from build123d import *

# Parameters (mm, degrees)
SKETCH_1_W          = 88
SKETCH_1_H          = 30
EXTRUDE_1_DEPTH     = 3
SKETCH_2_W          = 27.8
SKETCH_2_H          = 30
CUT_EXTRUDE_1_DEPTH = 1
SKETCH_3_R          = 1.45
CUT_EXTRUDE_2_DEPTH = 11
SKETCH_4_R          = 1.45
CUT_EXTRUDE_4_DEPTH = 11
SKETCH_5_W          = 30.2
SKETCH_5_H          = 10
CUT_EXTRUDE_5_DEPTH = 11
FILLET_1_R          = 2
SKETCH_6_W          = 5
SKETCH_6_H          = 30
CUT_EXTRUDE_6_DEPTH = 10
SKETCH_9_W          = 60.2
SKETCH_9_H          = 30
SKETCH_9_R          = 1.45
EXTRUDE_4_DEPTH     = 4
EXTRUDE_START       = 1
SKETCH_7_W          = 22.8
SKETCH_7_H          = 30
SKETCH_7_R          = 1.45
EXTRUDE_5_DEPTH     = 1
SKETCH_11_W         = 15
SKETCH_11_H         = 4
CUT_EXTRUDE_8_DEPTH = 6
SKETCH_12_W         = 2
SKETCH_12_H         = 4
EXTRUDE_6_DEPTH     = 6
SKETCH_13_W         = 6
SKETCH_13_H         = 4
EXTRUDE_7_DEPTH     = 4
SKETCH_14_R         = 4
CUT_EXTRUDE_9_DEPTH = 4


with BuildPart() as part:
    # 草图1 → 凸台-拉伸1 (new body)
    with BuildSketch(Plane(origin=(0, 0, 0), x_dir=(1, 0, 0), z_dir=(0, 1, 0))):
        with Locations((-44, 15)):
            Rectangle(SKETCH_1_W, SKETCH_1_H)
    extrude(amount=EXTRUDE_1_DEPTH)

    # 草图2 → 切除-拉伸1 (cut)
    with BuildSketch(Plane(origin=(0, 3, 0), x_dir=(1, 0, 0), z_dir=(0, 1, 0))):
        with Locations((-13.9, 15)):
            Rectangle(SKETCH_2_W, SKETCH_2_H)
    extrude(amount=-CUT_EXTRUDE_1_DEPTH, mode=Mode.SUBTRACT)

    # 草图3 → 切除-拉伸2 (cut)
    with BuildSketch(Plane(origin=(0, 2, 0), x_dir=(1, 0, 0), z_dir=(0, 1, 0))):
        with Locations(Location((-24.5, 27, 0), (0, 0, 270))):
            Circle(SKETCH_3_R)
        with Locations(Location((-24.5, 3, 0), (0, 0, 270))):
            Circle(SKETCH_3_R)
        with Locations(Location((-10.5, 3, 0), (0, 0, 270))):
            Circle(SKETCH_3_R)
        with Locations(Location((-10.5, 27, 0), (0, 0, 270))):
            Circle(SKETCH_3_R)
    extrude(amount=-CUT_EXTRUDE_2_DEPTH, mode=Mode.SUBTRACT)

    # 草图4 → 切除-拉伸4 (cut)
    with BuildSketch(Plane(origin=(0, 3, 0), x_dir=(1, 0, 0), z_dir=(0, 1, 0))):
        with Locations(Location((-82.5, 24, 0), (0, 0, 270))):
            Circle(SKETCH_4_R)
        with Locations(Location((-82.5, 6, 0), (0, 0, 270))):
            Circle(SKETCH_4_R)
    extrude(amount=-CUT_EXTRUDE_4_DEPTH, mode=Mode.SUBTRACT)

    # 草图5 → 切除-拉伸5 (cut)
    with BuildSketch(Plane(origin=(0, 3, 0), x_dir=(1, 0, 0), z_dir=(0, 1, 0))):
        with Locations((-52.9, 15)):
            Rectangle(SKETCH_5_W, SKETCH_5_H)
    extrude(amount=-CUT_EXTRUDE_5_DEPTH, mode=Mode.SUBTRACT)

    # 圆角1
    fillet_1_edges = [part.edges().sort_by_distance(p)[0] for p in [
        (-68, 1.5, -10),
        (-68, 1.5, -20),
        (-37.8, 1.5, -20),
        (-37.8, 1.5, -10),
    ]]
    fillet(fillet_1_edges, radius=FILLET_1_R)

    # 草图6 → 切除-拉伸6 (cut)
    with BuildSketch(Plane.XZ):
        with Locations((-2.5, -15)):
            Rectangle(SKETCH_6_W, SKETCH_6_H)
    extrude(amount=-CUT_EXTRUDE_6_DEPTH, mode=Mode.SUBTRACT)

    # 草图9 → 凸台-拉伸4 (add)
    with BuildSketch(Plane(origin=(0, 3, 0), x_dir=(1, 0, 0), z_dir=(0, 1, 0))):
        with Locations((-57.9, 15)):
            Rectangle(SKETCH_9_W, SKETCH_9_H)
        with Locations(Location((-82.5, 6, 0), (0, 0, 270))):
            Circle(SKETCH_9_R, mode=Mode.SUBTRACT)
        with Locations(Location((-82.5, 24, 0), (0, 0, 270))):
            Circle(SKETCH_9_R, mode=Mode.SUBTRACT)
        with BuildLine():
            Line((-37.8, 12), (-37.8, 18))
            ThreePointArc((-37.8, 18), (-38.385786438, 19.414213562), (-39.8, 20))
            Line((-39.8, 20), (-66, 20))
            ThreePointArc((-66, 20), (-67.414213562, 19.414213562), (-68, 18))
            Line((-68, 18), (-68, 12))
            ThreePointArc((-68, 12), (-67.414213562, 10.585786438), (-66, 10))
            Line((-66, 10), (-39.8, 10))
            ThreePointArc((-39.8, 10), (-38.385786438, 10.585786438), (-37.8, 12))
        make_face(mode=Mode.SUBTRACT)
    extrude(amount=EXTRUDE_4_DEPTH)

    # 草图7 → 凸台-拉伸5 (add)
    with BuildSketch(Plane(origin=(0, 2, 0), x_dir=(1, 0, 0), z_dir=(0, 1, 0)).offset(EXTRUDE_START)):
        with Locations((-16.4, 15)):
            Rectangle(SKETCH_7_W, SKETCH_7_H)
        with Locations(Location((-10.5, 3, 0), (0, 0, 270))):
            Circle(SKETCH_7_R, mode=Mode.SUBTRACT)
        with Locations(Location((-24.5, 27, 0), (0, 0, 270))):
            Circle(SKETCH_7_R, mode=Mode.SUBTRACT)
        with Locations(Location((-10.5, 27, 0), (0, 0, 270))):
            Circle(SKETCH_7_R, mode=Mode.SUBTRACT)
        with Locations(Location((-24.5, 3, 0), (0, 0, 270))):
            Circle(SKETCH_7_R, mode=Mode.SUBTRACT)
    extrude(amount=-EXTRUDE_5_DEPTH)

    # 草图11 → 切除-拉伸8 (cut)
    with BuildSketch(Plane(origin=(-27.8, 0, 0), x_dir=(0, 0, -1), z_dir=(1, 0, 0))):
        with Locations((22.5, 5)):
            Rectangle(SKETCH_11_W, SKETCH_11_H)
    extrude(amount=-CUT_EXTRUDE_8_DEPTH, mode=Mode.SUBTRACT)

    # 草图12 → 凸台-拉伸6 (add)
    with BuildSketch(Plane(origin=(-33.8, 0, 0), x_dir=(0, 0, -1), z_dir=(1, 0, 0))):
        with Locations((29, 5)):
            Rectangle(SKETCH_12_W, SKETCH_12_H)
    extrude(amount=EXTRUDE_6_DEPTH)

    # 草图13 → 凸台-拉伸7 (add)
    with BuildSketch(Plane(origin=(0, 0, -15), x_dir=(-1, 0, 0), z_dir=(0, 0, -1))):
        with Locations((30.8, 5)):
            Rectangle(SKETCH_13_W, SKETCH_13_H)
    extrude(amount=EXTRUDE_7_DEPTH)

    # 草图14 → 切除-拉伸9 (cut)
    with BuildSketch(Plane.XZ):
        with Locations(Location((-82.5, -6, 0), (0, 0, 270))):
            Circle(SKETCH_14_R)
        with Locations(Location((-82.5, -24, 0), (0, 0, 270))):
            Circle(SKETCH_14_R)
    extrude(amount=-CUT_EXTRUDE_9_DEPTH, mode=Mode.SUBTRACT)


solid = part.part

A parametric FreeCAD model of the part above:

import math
import FreeCAD as App
import Part
import Sketcher
from FreeCAD import Vector
Q = App.Units.Quantity


def edges_at(feature, points):
    """Names of the edges that pass closest to the given points."""
    edges = feature.Shape.Edges
    near = lambda p: min(range(len(edges)), key=lambda i: edges[i].distToShape(Part.Vertex(*p))[0])
    return sorted({f"Edge{near(p) + 1}" for p in points})

doc = App.newDocument("Part")
body = doc.addObject("PartDesign::Body", "Body")

# Sketch on XZ plane
sketch1 = body.newObject("Sketcher::SketchObject", "Sketch")
sketch1.AttachmentSupport = (doc.getObject("XZ_Plane"), [""])
sketch1.MapMode = "FlatFace"
sketch1.addGeometry(Part.LineSegment(Vector(-88, -30, 0), Vector(-88, 0, 0)), False)
sketch1.addGeometry(Part.LineSegment(Vector(-88, 0, 0), Vector(0, 0, 0)), False)
sketch1.addGeometry(Part.LineSegment(Vector(0, 0, 0), Vector(0, -30, 0)), False)
sketch1.addGeometry(Part.LineSegment(Vector(0, -30, 0), Vector(-88, -30, 0)), False)
sketch1.addConstraint(Sketcher.Constraint("Coincident", 0, 2, 1, 1))
sketch1.addConstraint(Sketcher.Constraint("Coincident", 1, 2, 2, 1))
sketch1.addConstraint(Sketcher.Constraint("Coincident", 2, 2, 3, 1))
sketch1.addConstraint(Sketcher.Constraint("Coincident", 3, 2, 0, 1))
sketch1.addConstraint(Sketcher.Constraint("Vertical", 0))
sketch1.addConstraint(Sketcher.Constraint("Horizontal", 1))
sketch1.addConstraint(Sketcher.Constraint("Vertical", 2))
sketch1.addConstraint(Sketcher.Constraint("Horizontal", 3))
sketch1.addConstraint(Sketcher.Constraint("Coincident", 1, 2, -1, 1))
sketch1.addConstraint(Sketcher.Constraint("DistanceX", 1, 1, 1, 2, Q("88 mm")))
sketch1.addConstraint(Sketcher.Constraint("DistanceY", 0, 1, 0, 2, Q("30 mm")))
pad1 = body.newObject("PartDesign::Pad", "Pad")
pad1.Profile = sketch1
pad1.Length = 3
pad1.Reversed = True

# Sketch on XZ plane
sketch2 = body.newObject("Sketcher::SketchObject", "Sketch001")
sketch2.AttachmentSupport = (doc.getObject("XZ_Plane"), [""])
sketch2.MapMode = "FlatFace"
sketch2.AttachmentOffset = App.Placement(Vector(0, 0, -3), App.Rotation())
sketch2.addGeometry(Part.LineSegment(Vector(-27.8, -30, 0), Vector(-27.8, 0, 0)), False)
sketch2.addGeometry(Part.LineSegment(Vector(-27.8, 0, 0), Vector(0, 0, 0)), False)
sketch2.addGeometry(Part.LineSegment(Vector(0, 0, 0), Vector(0, -30, 0)), False)
sketch2.addGeometry(Part.LineSegment(Vector(0, -30, 0), Vector(-27.8, -30, 0)), False)
sketch2.addConstraint(Sketcher.Constraint("Coincident", 0, 2, 1, 1))
sketch2.addConstraint(Sketcher.Constraint("Coincident", 1, 2, 2, 1))
sketch2.addConstraint(Sketcher.Constraint("Coincident", 2, 2, 3, 1))
sketch2.addConstraint(Sketcher.Constraint("Coincident", 3, 2, 0, 1))
sketch2.addConstraint(Sketcher.Constraint("Vertical", 0))
sketch2.addConstraint(Sketcher.Constraint("Horizontal", 1))
sketch2.addConstraint(Sketcher.Constraint("Vertical", 2))
sketch2.addConstraint(Sketcher.Constraint("Horizontal", 3))
sketch2.addConstraint(Sketcher.Constraint("Coincident", 1, 2, -1, 1))
sketch2.addConstraint(Sketcher.Constraint("DistanceY", 0, 1, 0, 2, Q("30 mm")))
sketch2.addConstraint(Sketcher.Constraint("DistanceX", 1, 1, 1, 2, Q("27.8 mm")))
pocket1 = body.newObject("PartDesign::Pocket", "Pocket")
pocket1.Profile = sketch2
pocket1.Length = 1
pocket1.Reversed = True

# Sketch on XZ plane
sketch3 = body.newObject("Sketcher::SketchObject", "Sketch002")
sketch3.AttachmentSupport = (doc.getObject("XZ_Plane"), [""])
sketch3.MapMode = "FlatFace"
sketch3.AttachmentOffset = App.Placement(Vector(0, 0, -2), App.Rotation())
sketch3.addGeometry(Part.Circle(Vector(-24.5, -27, 0), Vector(0, 0, 1), 1.45), False)
sketch3.addGeometry(Part.Circle(Vector(-24.5, -3, 0), Vector(0, 0, 1), 1.45), False)
sketch3.addGeometry(Part.Circle(Vector(-10.5, -3, 0), Vector(0, 0, 1), 1.45), False)
sketch3.addGeometry(Part.Circle(Vector(-10.5, -27, 0), Vector(0, 0, 1), 1.45), False)
sketch3.addConstraint(Sketcher.Constraint("Equal", 0, 1))
sketch3.addConstraint(Sketcher.Constraint("Equal", 1, 2))
sketch3.addConstraint(Sketcher.Constraint("Equal", 2, 3))
sketch3.addConstraint(Sketcher.Constraint("Horizontal", 1, 3, 2, 3))
sketch3.addConstraint(Sketcher.Constraint("Horizontal", 0, 3, 3, 3))
sketch3.addConstraint(Sketcher.Constraint("Vertical", 0, 3, 1, 3))
sketch3.addConstraint(Sketcher.Constraint("Vertical", 2, 3, 3, 3))
sketch3.addConstraint(Sketcher.Constraint("Diameter", 0, Q("2.9 mm")))
sketch3.addConstraint(Sketcher.Constraint("DistanceY", 0, 3, -1, 1, Q("27 mm")))
sketch3.addConstraint(Sketcher.Constraint("DistanceY", 1, 3, -1, 1, Q("3 mm")))
sketch3.addConstraint(Sketcher.Constraint("DistanceX", 1, 3, 2, 3, Q("14 mm")))
sketch3.addConstraint(Sketcher.Constraint("DistanceX", 0, 3, -1, 1, Q("24.5 mm")))
pocket2 = body.newObject("PartDesign::Pocket", "Pocket001")
pocket2.Profile = sketch3
pocket2.Length = 11
pocket2.Reversed = True

# Sketch on XZ plane
sketch4 = body.newObject("Sketcher::SketchObject", "Sketch003")
sketch4.AttachmentSupport = (doc.getObject("XZ_Plane"), [""])
sketch4.MapMode = "FlatFace"
sketch4.AttachmentOffset = App.Placement(Vector(0, 0, -3), App.Rotation())
sketch4.addGeometry(Part.Circle(Vector(-82.5, -24, 0), Vector(0, 0, 1), 1.45), False)
sketch4.addGeometry(Part.Circle(Vector(-82.5, -6, 0), Vector(0, 0, 1), 1.45), False)
sketch4.addConstraint(Sketcher.Constraint("Equal", 0, 1))
sketch4.addConstraint(Sketcher.Constraint("Vertical", 0, 3, 1, 3))
sketch4.addConstraint(Sketcher.Constraint("Diameter", 0, Q("2.9 mm")))
sketch4.addConstraint(Sketcher.Constraint("DistanceY", 0, 3, -1, 1, Q("24 mm")))
sketch4.addConstraint(Sketcher.Constraint("DistanceY", 1, 3, -1, 1, Q("6 mm")))
sketch4.addConstraint(Sketcher.Constraint("DistanceX", 0, 3, -1, 1, Q("82.5 mm")))
pocket3 = body.newObject("PartDesign::Pocket", "Pocket002")
pocket3.Profile = sketch4
pocket3.Length = 11
pocket3.Reversed = True

# Sketch on XZ plane
sketch5 = body.newObject("Sketcher::SketchObject", "Sketch004")
sketch5.AttachmentSupport = (doc.getObject("XZ_Plane"), [""])
sketch5.MapMode = "FlatFace"
sketch5.AttachmentOffset = App.Placement(Vector(0, 0, -3), App.Rotation())
sketch5.addGeometry(Part.LineSegment(Vector(-68, -20, 0), Vector(-68, -10, 0)), False)
sketch5.addGeometry(Part.LineSegment(Vector(-68, -10, 0), Vector(-37.8, -10, 0)), False)
sketch5.addGeometry(Part.LineSegment(Vector(-37.8, -10, 0), Vector(-37.8, -20, 0)), False)
sketch5.addGeometry(Part.LineSegment(Vector(-37.8, -20, 0), Vector(-68, -20, 0)), False)
sketch5.addConstraint(Sketcher.Constraint("Coincident", 0, 2, 1, 1))
sketch5.addConstraint(Sketcher.Constraint("Coincident", 1, 2, 2, 1))
sketch5.addConstraint(Sketcher.Constraint("Coincident", 2, 2, 3, 1))
sketch5.addConstraint(Sketcher.Constraint("Coincident", 3, 2, 0, 1))
sketch5.addConstraint(Sketcher.Constraint("Vertical", 0))
sketch5.addConstraint(Sketcher.Constraint("Horizontal", 1))
sketch5.addConstraint(Sketcher.Constraint("Vertical", 2))
sketch5.addConstraint(Sketcher.Constraint("Horizontal", 3))
sketch5.addConstraint(Sketcher.Constraint("DistanceY", 0, 1, 0, 2, Q("10 mm")))
sketch5.addConstraint(Sketcher.Constraint("DistanceX", 1, 1, 1, 2, Q("30.2 mm")))
sketch5.addConstraint(Sketcher.Constraint("DistanceX", 0, 2, -1, 1, Q("68 mm")))
sketch5.addConstraint(Sketcher.Constraint("DistanceY", 0, 2, -1, 1, Q("10 mm")))
pocket4 = body.newObject("PartDesign::Pocket", "Pocket003")
pocket4.Profile = sketch5
pocket4.Length = 11
pocket4.Reversed = True
doc.recompute()

fillet = body.newObject("PartDesign::Fillet", "Fillet")
fillet.Base = (pocket4, edges_at(pocket4, [
    (-68, 1.5, -10),
    (-68, 1.5, -20),
    (-37.8, 1.5, -20),
    (-37.8, 1.5, -10),
]))
fillet.Radius = 2

# Sketch on XZ plane
sketch6 = body.newObject("Sketcher::SketchObject", "Sketch005")
sketch6.AttachmentSupport = (doc.getObject("XZ_Plane"), [""])
sketch6.MapMode = "FlatFace"
sketch6.addGeometry(Part.LineSegment(Vector(-5, 0, 0), Vector(-5, -30, 0)), False)
sketch6.addGeometry(Part.LineSegment(Vector(-5, -30, 0), Vector(0, -30, 0)), False)
sketch6.addGeometry(Part.LineSegment(Vector(0, -30, 0), Vector(0, 0, 0)), False)
sketch6.addGeometry(Part.LineSegment(Vector(0, 0, 0), Vector(-5, 0, 0)), False)
sketch6.addConstraint(Sketcher.Constraint("Coincident", 0, 2, 1, 1))
sketch6.addConstraint(Sketcher.Constraint("Coincident", 1, 2, 2, 1))
sketch6.addConstraint(Sketcher.Constraint("Coincident", 2, 2, 3, 1))
sketch6.addConstraint(Sketcher.Constraint("Coincident", 3, 2, 0, 1))
sketch6.addConstraint(Sketcher.Constraint("Vertical", 0))
sketch6.addConstraint(Sketcher.Constraint("Horizontal", 1))
sketch6.addConstraint(Sketcher.Constraint("Vertical", 2))
sketch6.addConstraint(Sketcher.Constraint("Horizontal", 3))
sketch6.addConstraint(Sketcher.Constraint("Coincident", 2, 2, -1, 1))
sketch6.addConstraint(Sketcher.Constraint("DistanceX", 1, 1, 1, 2, Q("5 mm")))
sketch6.addConstraint(Sketcher.Constraint("DistanceY", 0, 2, 0, 1, Q("30 mm")))
pocket5 = body.newObject("PartDesign::Pocket", "Pocket004")
pocket5.Profile = sketch6
pocket5.Length = 10

# Sketch on XZ plane
sketch7 = body.newObject("Sketcher::SketchObject", "Sketch006")
sketch7.AttachmentSupport = (doc.getObject("XZ_Plane"), [""])
sketch7.MapMode = "FlatFace"
sketch7.AttachmentOffset = App.Placement(Vector(0, 0, -3), App.Rotation())
sketch7.addGeometry(Part.LineSegment(Vector(-88, -30, 0), Vector(-88, 0, 0)), False)
sketch7.addGeometry(Part.LineSegment(Vector(-88, 0, 0), Vector(-27.8, 0, 0)), False)
sketch7.addGeometry(Part.LineSegment(Vector(-27.8, 0, 0), Vector(-27.8, -30, 0)), False)
sketch7.addGeometry(Part.LineSegment(Vector(-27.8, -30, 0), Vector(-88, -30, 0)), False)
sketch7.addGeometry(Part.Circle(Vector(-82.5, -6, 0), Vector(0, 0, 1), 1.45), False)
sketch7.addGeometry(Part.LineSegment(Vector(-37.8, -18, 0), Vector(-37.8, -12, 0)), False)
sketch7.addGeometry(Part.ArcOfCircle(Part.Circle(Vector(-39.8, -12, 0), Vector(0, 0, 1), 2), math.radians(0), math.radians(90)), False)
sketch7.addGeometry(Part.LineSegment(Vector(-39.8, -10, 0), Vector(-66, -10, 0)), False)
sketch7.addGeometry(Part.ArcOfCircle(Part.Circle(Vector(-66, -12, 0), Vector(0, 0, 1), 2), math.radians(90), math.radians(180)), False)
sketch7.addGeometry(Part.LineSegment(Vector(-68, -12, 0), Vector(-68, -18, 0)), False)
sketch7.addGeometry(Part.ArcOfCircle(Part.Circle(Vector(-66, -18, 0), Vector(0, 0, 1), 2), math.radians(-180), math.radians(-90)), False)
sketch7.addGeometry(Part.LineSegment(Vector(-66, -20, 0), Vector(-39.8, -20, 0)), False)
sketch7.addGeometry(Part.ArcOfCircle(Part.Circle(Vector(-39.8, -18, 0), Vector(0, 0, 1), 2), math.radians(-90), math.radians(0)), False)
sketch7.addGeometry(Part.Circle(Vector(-82.5, -24, 0), Vector(0, 0, 1), 1.45), False)
sketch7.addConstraint(Sketcher.Constraint("Coincident", 0, 2, 1, 1))
sketch7.addConstraint(Sketcher.Constraint("Coincident", 1, 2, 2, 1))
sketch7.addConstraint(Sketcher.Constraint("Coincident", 2, 2, 3, 1))
sketch7.addConstraint(Sketcher.Constraint("Coincident", 3, 2, 0, 1))
sketch7.addConstraint(Sketcher.Constraint("Tangent", 5, 2, 6, 1))
sketch7.addConstraint(Sketcher.Constraint("Tangent", 6, 2, 7, 1))
sketch7.addConstraint(Sketcher.Constraint("Tangent", 7, 2, 8, 1))
sketch7.addConstraint(Sketcher.Constraint("Tangent", 8, 2, 9, 1))
sketch7.addConstraint(Sketcher.Constraint("Tangent", 9, 2, 10, 1))
sketch7.addConstraint(Sketcher.Constraint("Tangent", 10, 2, 11, 1))
sketch7.addConstraint(Sketcher.Constraint("Tangent", 11, 2, 12, 1))
sketch7.addConstraint(Sketcher.Constraint("Tangent", 12, 2, 5, 1))
sketch7.addConstraint(Sketcher.Constraint("Vertical", 0))
sketch7.addConstraint(Sketcher.Constraint("Horizontal", 1))
sketch7.addConstraint(Sketcher.Constraint("Vertical", 2))
sketch7.addConstraint(Sketcher.Constraint("Horizontal", 3))
sketch7.addConstraint(Sketcher.Constraint("Vertical", 5))
sketch7.addConstraint(Sketcher.Constraint("Horizontal", 7))
sketch7.addConstraint(Sketcher.Constraint("Vertical", 9))
sketch7.addConstraint(Sketcher.Constraint("Horizontal", 11))
sketch7.addConstraint(Sketcher.Constraint("Equal", 6, 8))
sketch7.addConstraint(Sketcher.Constraint("Equal", 8, 10))
sketch7.addConstraint(Sketcher.Constraint("Equal", 10, 12))
sketch7.addConstraint(Sketcher.Constraint("Equal", 4, 13))
sketch7.addConstraint(Sketcher.Constraint("PointOnObject", 0, 2, -1))
sketch7.addConstraint(Sketcher.Constraint("Vertical", 4, 3, 13, 3))
sketch7.addConstraint(Sketcher.Constraint("Radius", 6, Q("2 mm")))
sketch7.addConstraint(Sketcher.Constraint("Diameter", 4, Q("2.9 mm")))
sketch7.addConstraint(Sketcher.Constraint("DistanceY", 0, 1, 0, 2, Q("30 mm")))
sketch7.addConstraint(Sketcher.Constraint("DistanceY", 5, 1, 5, 2, Q("6 mm")))
sketch7.addConstraint(Sketcher.Constraint("DistanceX", 1, 1, 1, 2, Q("60.2 mm")))
sketch7.addConstraint(Sketcher.Constraint("DistanceX", 7, 2, 7, 1, Q("26.2 mm")))
sketch7.addConstraint(Sketcher.Constraint("DistanceY", 4, 3, -1, 1, Q("6 mm")))
sketch7.addConstraint(Sketcher.Constraint("DistanceY", 6, 3, -1, 1, Q("12 mm")))
sketch7.addConstraint(Sketcher.Constraint("DistanceX", 8, 3, -1, 1, Q("66 mm")))
sketch7.addConstraint(Sketcher.Constraint("DistanceY", 13, 3, -1, 1, Q("24 mm")))
sketch7.addConstraint(Sketcher.Constraint("DistanceX", 0, 2, -1, 1, Q("88 mm")))
sketch7.addConstraint(Sketcher.Constraint("DistanceX", 4, 3, -1, 1, Q("82.5 mm")))
pad2 = body.newObject("PartDesign::Pad", "Pad001")
pad2.Profile = sketch7
pad2.Length = 4
pad2.Reversed = True

# Sketch on XZ plane
sketch8 = body.newObject("Sketcher::SketchObject", "Sketch007")
sketch8.AttachmentSupport = (doc.getObject("XZ_Plane"), [""])
sketch8.MapMode = "FlatFace"
sketch8.AttachmentOffset = App.Placement(Vector(0, 0, -3), App.Rotation())
sketch8.addGeometry(Part.LineSegment(Vector(-27.8, -30, 0), Vector(-27.8, 0, 0)), False)
sketch8.addGeometry(Part.LineSegment(Vector(-27.8, 0, 0), Vector(-5, 0, 0)), False)
sketch8.addGeometry(Part.LineSegment(Vector(-5, 0, 0), Vector(-5, -30, 0)), False)
sketch8.addGeometry(Part.LineSegment(Vector(-5, -30, 0), Vector(-27.8, -30, 0)), False)
sketch8.addGeometry(Part.Circle(Vector(-24.5, -3, 0), Vector(0, 0, 1), 1.45), False)
sketch8.addGeometry(Part.Circle(Vector(-10.5, -3, 0), Vector(0, 0, 1), 1.45), False)
sketch8.addGeometry(Part.Circle(Vector(-24.5, -27, 0), Vector(0, 0, 1), 1.45), False)
sketch8.addGeometry(Part.Circle(Vector(-10.5, -27, 0), Vector(0, 0, 1), 1.45), False)
sketch8.addConstraint(Sketcher.Constraint("Coincident", 0, 2, 1, 1))
sketch8.addConstraint(Sketcher.Constraint("Coincident", 1, 2, 2, 1))
sketch8.addConstraint(Sketcher.Constraint("Coincident", 2, 2, 3, 1))
sketch8.addConstraint(Sketcher.Constraint("Coincident", 3, 2, 0, 1))
sketch8.addConstraint(Sketcher.Constraint("Vertical", 0))
sketch8.addConstraint(Sketcher.Constraint("Horizontal", 1))
sketch8.addConstraint(Sketcher.Constraint("Vertical", 2))
sketch8.addConstraint(Sketcher.Constraint("Horizontal", 3))
sketch8.addConstraint(Sketcher.Constraint("Equal", 4, 5))
sketch8.addConstraint(Sketcher.Constraint("Equal", 5, 6))
sketch8.addConstraint(Sketcher.Constraint("Equal", 6, 7))
sketch8.addConstraint(Sketcher.Constraint("PointOnObject", 0, 2, -1))
sketch8.addConstraint(Sketcher.Constraint("Horizontal", 4, 3, 5, 3))
sketch8.addConstraint(Sketcher.Constraint("Horizontal", 6, 3, 7, 3))
sketch8.addConstraint(Sketcher.Constraint("Vertical", 4, 3, 6, 3))
sketch8.addConstraint(Sketcher.Constraint("Vertical", 5, 3, 7, 3))
sketch8.addConstraint(Sketcher.Constraint("Diameter", 4, Q("2.9 mm")))
sketch8.addConstraint(Sketcher.Constraint("DistanceY", 0, 1, 0, 2, Q("30 mm")))
sketch8.addConstraint(Sketcher.Constraint("DistanceX", 1, 1, 1, 2, Q("22.8 mm")))
sketch8.addConstraint(Sketcher.Constraint("DistanceY", 4, 3, -1, 1, Q("3 mm")))
sketch8.addConstraint(Sketcher.Constraint("DistanceY", 6, 3, -1, 1, Q("27 mm")))
sketch8.addConstraint(Sketcher.Constraint("DistanceX", 1, 2, -1, 1, Q("5 mm")))
sketch8.addConstraint(Sketcher.Constraint("DistanceX", 4, 3, 5, 3, Q("14 mm")))
sketch8.addConstraint(Sketcher.Constraint("DistanceX", 4, 3, -1, 1, Q("24.5 mm")))
pad3 = body.newObject("PartDesign::Pad", "Pad002")
pad3.Profile = sketch8
pad3.Length = 1

# Sketch on YZ plane
sketch9 = body.newObject("Sketcher::SketchObject", "Sketch008")
sketch9.AttachmentSupport = (doc.getObject("YZ_Plane"), [""])
sketch9.MapMode = "FlatFace"
sketch9.AttachmentOffset = App.Placement(Vector(0, 0, -27.8), App.Rotation())
sketch9.addGeometry(Part.LineSegment(Vector(7, -15, 0), Vector(3, -15, 0)), False)
sketch9.addGeometry(Part.LineSegment(Vector(3, -15, 0), Vector(3, -30, 0)), False)
sketch9.addGeometry(Part.LineSegment(Vector(3, -30, 0), Vector(7, -30, 0)), False)
sketch9.addGeometry(Part.LineSegment(Vector(7, -30, 0), Vector(7, -15, 0)), False)
sketch9.addConstraint(Sketcher.Constraint("Coincident", 0, 2, 1, 1))
sketch9.addConstraint(Sketcher.Constraint("Coincident", 1, 2, 2, 1))
sketch9.addConstraint(Sketcher.Constraint("Coincident", 2, 2, 3, 1))
sketch9.addConstraint(Sketcher.Constraint("Coincident", 3, 2, 0, 1))
sketch9.addConstraint(Sketcher.Constraint("Horizontal", 0))
sketch9.addConstraint(Sketcher.Constraint("Vertical", 1))
sketch9.addConstraint(Sketcher.Constraint("Horizontal", 2))
sketch9.addConstraint(Sketcher.Constraint("Vertical", 3))
sketch9.addConstraint(Sketcher.Constraint("DistanceX", 0, 2, 0, 1, Q("4 mm")))
sketch9.addConstraint(Sketcher.Constraint("DistanceY", 1, 2, 1, 1, Q("15 mm")))
sketch9.addConstraint(Sketcher.Constraint("DistanceX", -1, 1, 0, 2, Q("3 mm")))
sketch9.addConstraint(Sketcher.Constraint("DistanceY", 0, 2, -1, 1, Q("15 mm")))
pocket6 = body.newObject("PartDesign::Pocket", "Pocket005")
pocket6.Profile = sketch9
pocket6.Length = 6

# Sketch on YZ plane
sketch10 = body.newObject("Sketcher::SketchObject", "Sketch009")
sketch10.AttachmentSupport = (doc.getObject("YZ_Plane"), [""])
sketch10.MapMode = "FlatFace"
sketch10.AttachmentOffset = App.Placement(Vector(0, 0, -33.8), App.Rotation())
sketch10.addGeometry(Part.LineSegment(Vector(7, -28, 0), Vector(3, -28, 0)), False)
sketch10.addGeometry(Part.LineSegment(Vector(3, -28, 0), Vector(3, -30, 0)), False)
sketch10.addGeometry(Part.LineSegment(Vector(3, -30, 0), Vector(7, -30, 0)), False)
sketch10.addGeometry(Part.LineSegment(Vector(7, -30, 0), Vector(7, -28, 0)), False)
sketch10.addConstraint(Sketcher.Constraint("Coincident", 0, 2, 1, 1))
sketch10.addConstraint(Sketcher.Constraint("Coincident", 1, 2, 2, 1))
sketch10.addConstraint(Sketcher.Constraint("Coincident", 2, 2, 3, 1))
sketch10.addConstraint(Sketcher.Constraint("Coincident", 3, 2, 0, 1))
sketch10.addConstraint(Sketcher.Constraint("Horizontal", 0))
sketch10.addConstraint(Sketcher.Constraint("Vertical", 1))
sketch10.addConstraint(Sketcher.Constraint("Horizontal", 2))
sketch10.addConstraint(Sketcher.Constraint("Vertical", 3))
sketch10.addConstraint(Sketcher.Constraint("DistanceX", 0, 2, 0, 1, Q("4 mm")))
sketch10.addConstraint(Sketcher.Constraint("DistanceY", 1, 2, 1, 1, Q("2 mm")))
sketch10.addConstraint(Sketcher.Constraint("DistanceX", -1, 1, 0, 2, Q("3 mm")))
sketch10.addConstraint(Sketcher.Constraint("DistanceY", 0, 2, -1, 1, Q("28 mm")))
pad4 = body.newObject("PartDesign::Pad", "Pad003")
pad4.Profile = sketch10
pad4.Length = 6

# Sketch on XY plane
sketch11 = body.newObject("Sketcher::SketchObject", "Sketch010")
sketch11.AttachmentSupport = (doc.getObject("XY_Plane"), [""])
sketch11.MapMode = "FlatFace"
sketch11.AttachmentOffset = App.Placement(Vector(0, 0, -15), App.Rotation())
sketch11.addGeometry(Part.LineSegment(Vector(-27.8, 7, 0), Vector(-27.8, 3, 0)), False)
sketch11.addGeometry(Part.LineSegment(Vector(-27.8, 3, 0), Vector(-33.8, 3, 0)), False)
sketch11.addGeometry(Part.LineSegment(Vector(-33.8, 3, 0), Vector(-33.8, 7, 0)), False)
sketch11.addGeometry(Part.LineSegment(Vector(-33.8, 7, 0), Vector(-27.8, 7, 0)), False)
sketch11.addConstraint(Sketcher.Constraint("Coincident", 0, 2, 1, 1))
sketch11.addConstraint(Sketcher.Constraint("Coincident", 1, 2, 2, 1))
sketch11.addConstraint(Sketcher.Constraint("Coincident", 2, 2, 3, 1))
sketch11.addConstraint(Sketcher.Constraint("Coincident", 3, 2, 0, 1))
sketch11.addConstraint(Sketcher.Constraint("Vertical", 0))
sketch11.addConstraint(Sketcher.Constraint("Horizontal", 1))
sketch11.addConstraint(Sketcher.Constraint("Vertical", 2))
sketch11.addConstraint(Sketcher.Constraint("Horizontal", 3))
sketch11.addConstraint(Sketcher.Constraint("DistanceX", 1, 2, 1, 1, Q("6 mm")))
sketch11.addConstraint(Sketcher.Constraint("DistanceY", 0, 2, 0, 1, Q("4 mm")))
sketch11.addConstraint(Sketcher.Constraint("DistanceY", -1, 1, 0, 2, Q("3 mm")))
sketch11.addConstraint(Sketcher.Constraint("DistanceX", 0, 2, -1, 1, Q("27.8 mm")))
pad5 = body.newObject("PartDesign::Pad", "Pad004")
pad5.Profile = sketch11
pad5.Length = 4
pad5.Reversed = True

# Sketch on XZ plane
sketch12 = body.newObject("Sketcher::SketchObject", "Sketch011")
sketch12.AttachmentSupport = (doc.getObject("XZ_Plane"), [""])
sketch12.MapMode = "FlatFace"
sketch12.addGeometry(Part.Circle(Vector(-82.5, -6, 0), Vector(0, 0, 1), 4), False)
sketch12.addGeometry(Part.Circle(Vector(-82.5, -24, 0), Vector(0, 0, 1), 4), False)
sketch12.addConstraint(Sketcher.Constraint("Equal", 0, 1))
sketch12.addConstraint(Sketcher.Constraint("Vertical", 0, 3, 1, 3))
sketch12.addConstraint(Sketcher.Constraint("Diameter", 0, Q("8 mm")))
sketch12.addConstraint(Sketcher.Constraint("DistanceY", 0, 3, -1, 1, Q("6 mm")))
sketch12.addConstraint(Sketcher.Constraint("DistanceY", 1, 3, -1, 1, Q("24 mm")))
sketch12.addConstraint(Sketcher.Constraint("DistanceX", 0, 3, -1, 1, Q("82.5 mm")))
pocket7 = body.newObject("PartDesign::Pocket", "Pocket006")
pocket7.Profile = sketch12
pocket7.Length = 4

doc.recompute()
